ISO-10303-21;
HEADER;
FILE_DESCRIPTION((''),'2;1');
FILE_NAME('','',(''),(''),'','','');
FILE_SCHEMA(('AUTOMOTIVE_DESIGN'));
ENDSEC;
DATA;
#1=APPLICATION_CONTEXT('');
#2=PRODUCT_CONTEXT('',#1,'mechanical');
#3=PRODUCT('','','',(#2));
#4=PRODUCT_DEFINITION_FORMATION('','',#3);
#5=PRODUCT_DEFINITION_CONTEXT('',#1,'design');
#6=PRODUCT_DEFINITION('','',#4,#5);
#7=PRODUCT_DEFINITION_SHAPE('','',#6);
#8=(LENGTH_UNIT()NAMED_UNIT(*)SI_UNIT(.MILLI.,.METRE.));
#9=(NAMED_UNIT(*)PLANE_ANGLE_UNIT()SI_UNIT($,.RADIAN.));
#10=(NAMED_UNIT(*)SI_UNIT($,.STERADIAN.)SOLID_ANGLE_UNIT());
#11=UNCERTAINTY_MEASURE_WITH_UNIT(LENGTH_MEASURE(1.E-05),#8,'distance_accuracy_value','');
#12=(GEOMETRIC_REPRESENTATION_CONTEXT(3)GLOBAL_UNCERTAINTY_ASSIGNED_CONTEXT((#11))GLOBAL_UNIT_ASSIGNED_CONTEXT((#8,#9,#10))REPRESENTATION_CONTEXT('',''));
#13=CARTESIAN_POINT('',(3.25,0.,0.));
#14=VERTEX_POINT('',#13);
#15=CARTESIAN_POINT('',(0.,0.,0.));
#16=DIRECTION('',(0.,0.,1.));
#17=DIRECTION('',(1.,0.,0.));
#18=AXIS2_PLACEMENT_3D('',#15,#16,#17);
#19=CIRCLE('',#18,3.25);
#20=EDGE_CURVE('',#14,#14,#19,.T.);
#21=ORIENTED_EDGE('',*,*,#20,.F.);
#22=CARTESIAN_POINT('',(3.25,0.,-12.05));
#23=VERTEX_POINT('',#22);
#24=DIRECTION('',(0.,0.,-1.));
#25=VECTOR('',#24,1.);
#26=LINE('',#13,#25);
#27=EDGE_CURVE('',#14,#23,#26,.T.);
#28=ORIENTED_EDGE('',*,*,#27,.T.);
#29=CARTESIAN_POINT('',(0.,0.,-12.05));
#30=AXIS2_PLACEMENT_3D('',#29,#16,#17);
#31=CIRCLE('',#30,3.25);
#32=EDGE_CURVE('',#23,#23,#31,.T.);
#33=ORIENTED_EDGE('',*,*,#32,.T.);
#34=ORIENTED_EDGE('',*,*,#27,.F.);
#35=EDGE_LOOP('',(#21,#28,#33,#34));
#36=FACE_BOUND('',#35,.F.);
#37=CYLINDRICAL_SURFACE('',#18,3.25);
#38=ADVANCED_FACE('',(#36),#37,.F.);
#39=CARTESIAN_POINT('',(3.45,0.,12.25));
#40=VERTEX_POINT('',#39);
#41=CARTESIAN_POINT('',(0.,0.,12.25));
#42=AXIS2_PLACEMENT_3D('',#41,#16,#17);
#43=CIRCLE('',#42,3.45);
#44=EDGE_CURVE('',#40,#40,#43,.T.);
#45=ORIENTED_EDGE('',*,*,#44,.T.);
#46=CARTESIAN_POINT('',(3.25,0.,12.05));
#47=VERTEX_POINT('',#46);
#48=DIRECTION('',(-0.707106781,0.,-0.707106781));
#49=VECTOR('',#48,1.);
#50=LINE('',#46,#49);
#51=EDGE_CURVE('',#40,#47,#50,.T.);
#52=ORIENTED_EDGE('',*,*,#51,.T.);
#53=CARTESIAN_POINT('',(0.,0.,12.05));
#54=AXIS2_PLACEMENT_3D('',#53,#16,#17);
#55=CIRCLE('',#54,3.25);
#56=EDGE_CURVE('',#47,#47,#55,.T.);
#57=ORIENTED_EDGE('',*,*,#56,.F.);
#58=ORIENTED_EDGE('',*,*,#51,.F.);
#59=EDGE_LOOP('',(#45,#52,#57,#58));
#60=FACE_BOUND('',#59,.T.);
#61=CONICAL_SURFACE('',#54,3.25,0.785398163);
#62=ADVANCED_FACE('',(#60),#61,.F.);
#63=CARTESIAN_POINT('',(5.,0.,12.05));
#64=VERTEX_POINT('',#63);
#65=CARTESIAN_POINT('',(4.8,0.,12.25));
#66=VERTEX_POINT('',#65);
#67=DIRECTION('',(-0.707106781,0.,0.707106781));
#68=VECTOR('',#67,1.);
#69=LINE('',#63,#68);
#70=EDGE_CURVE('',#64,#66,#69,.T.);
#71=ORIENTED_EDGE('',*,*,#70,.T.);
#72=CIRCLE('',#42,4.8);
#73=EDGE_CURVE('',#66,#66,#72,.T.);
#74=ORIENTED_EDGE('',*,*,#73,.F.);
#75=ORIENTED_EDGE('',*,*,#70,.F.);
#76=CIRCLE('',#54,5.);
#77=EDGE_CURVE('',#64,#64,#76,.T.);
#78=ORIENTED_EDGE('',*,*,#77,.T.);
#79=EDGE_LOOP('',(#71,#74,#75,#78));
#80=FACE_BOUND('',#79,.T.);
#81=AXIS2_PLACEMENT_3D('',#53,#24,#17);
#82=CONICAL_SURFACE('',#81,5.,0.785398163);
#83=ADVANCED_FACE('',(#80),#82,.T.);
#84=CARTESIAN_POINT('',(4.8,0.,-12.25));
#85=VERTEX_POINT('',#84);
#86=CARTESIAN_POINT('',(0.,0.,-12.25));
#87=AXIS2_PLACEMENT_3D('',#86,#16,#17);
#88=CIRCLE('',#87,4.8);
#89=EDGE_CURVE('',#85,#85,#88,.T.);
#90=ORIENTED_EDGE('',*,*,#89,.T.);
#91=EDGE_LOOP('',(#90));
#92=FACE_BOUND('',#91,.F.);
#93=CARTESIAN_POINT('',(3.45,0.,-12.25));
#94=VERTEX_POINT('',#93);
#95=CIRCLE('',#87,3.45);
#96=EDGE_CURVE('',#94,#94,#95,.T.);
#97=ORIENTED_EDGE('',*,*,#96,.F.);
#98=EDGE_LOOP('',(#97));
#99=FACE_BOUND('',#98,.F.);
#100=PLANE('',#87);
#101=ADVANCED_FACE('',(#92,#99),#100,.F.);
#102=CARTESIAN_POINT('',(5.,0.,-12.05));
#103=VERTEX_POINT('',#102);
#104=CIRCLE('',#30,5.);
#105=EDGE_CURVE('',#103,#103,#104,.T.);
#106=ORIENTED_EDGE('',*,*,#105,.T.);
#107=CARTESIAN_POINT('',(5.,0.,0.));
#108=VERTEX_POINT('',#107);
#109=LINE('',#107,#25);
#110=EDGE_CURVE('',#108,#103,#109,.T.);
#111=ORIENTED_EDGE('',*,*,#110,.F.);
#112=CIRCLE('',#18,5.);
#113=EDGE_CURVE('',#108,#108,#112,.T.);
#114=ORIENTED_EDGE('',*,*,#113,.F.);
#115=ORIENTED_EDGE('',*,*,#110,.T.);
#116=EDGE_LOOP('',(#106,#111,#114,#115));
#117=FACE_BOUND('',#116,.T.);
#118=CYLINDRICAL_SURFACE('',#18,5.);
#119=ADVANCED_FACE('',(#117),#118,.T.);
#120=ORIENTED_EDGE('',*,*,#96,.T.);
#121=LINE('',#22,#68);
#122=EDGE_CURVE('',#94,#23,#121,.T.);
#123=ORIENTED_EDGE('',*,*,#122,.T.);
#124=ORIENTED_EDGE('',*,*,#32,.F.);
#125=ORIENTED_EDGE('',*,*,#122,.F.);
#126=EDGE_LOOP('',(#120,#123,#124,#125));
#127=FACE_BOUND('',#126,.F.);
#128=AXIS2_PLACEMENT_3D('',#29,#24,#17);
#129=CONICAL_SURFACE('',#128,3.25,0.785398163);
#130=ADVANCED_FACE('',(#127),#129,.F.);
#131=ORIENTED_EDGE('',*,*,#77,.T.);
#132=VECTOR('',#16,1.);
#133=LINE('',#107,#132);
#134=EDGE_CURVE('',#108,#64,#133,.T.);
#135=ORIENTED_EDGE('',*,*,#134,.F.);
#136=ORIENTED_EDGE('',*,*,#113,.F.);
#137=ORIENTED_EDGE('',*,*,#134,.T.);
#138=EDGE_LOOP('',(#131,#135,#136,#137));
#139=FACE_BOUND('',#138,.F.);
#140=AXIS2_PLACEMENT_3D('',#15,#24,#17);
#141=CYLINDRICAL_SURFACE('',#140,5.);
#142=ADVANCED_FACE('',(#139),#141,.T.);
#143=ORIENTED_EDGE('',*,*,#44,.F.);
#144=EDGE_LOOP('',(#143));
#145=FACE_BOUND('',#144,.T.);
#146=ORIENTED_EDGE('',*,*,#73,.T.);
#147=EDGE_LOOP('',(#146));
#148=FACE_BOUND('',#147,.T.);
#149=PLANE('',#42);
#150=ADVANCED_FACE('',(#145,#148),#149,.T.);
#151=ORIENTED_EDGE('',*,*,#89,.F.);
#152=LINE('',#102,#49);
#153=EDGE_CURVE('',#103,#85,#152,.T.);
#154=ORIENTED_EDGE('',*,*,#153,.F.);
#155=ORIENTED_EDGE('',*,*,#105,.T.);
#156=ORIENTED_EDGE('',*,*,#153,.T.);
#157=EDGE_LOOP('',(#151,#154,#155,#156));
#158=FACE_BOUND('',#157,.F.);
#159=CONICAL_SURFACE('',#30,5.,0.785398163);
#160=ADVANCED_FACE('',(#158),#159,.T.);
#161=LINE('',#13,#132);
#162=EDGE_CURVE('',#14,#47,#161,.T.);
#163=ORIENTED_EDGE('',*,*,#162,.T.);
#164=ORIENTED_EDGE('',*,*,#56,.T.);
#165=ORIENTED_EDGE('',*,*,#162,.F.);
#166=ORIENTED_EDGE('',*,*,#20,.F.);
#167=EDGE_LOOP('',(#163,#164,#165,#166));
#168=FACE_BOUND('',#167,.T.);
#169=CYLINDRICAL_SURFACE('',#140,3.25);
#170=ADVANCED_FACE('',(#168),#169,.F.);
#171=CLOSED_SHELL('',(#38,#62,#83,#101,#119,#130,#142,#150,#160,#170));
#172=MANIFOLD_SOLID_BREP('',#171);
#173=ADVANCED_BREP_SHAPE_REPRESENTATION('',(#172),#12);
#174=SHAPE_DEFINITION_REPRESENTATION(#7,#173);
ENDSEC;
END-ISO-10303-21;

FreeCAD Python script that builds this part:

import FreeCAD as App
import Part
import Sketcher
Q = App.Units.Quantity


def edges_at(feature, points):
    """Names of the edges that pass closest to the given points."""
    edges = feature.Shape.Edges
    near = lambda p: min(range(len(edges)), key=lambda i: edges[i].distToShape(Part.Vertex(*p))[0])
    return sorted({f"Edge{near(p) + 1}" for p in points})

doc = App.newDocument("Part")
body = doc.addObject("PartDesign::Body", "Body")

sketch1 = body.newObject("Sketcher::SketchObject", "Sketch")
sketch1.AttachmentSupport = (doc.getObject("XY_Plane"), [""])
sketch1.MapMode = "FlatFace"
sketch1.addGeometry(Part.Circle(App.Vector(0, 0, 0), App.Vector(0, 0, 1), 5), False)
sketch1.addGeometry(Part.Circle(App.Vector(0, 0, 0), App.Vector(0, 0, 1), 3.25), False)
sketch1.addConstraint(Sketcher.Constraint("Coincident", 0, 3, -1, 1))
sketch1.addConstraint(Sketcher.Constraint("Coincident", 1, 3, -1, 1))
sketch1.addConstraint(Sketcher.Constraint("Diameter", 0, Q("10 mm")))
sketch1.addConstraint(Sketcher.Constraint("Diameter", 1, Q("6.5 mm")))
pad1 = body.newObject("PartDesign::Pad", "Pad")
pad1.Profile = sketch1
pad1.Length = 24.5
pad1.Midplane = True
doc.recompute()

chamfer = body.newObject("PartDesign::Chamfer", "Chamfer")
chamfer.Base = (pad1, edges_at(pad1, [
    (-5, 0, 12.25),
    (-3.25, 0, 12.25),
    (-5, 0, -12.25),
    (-3.25, 0, -12.25),
]))
chamfer.Size = 0.2

doc.recompute()
